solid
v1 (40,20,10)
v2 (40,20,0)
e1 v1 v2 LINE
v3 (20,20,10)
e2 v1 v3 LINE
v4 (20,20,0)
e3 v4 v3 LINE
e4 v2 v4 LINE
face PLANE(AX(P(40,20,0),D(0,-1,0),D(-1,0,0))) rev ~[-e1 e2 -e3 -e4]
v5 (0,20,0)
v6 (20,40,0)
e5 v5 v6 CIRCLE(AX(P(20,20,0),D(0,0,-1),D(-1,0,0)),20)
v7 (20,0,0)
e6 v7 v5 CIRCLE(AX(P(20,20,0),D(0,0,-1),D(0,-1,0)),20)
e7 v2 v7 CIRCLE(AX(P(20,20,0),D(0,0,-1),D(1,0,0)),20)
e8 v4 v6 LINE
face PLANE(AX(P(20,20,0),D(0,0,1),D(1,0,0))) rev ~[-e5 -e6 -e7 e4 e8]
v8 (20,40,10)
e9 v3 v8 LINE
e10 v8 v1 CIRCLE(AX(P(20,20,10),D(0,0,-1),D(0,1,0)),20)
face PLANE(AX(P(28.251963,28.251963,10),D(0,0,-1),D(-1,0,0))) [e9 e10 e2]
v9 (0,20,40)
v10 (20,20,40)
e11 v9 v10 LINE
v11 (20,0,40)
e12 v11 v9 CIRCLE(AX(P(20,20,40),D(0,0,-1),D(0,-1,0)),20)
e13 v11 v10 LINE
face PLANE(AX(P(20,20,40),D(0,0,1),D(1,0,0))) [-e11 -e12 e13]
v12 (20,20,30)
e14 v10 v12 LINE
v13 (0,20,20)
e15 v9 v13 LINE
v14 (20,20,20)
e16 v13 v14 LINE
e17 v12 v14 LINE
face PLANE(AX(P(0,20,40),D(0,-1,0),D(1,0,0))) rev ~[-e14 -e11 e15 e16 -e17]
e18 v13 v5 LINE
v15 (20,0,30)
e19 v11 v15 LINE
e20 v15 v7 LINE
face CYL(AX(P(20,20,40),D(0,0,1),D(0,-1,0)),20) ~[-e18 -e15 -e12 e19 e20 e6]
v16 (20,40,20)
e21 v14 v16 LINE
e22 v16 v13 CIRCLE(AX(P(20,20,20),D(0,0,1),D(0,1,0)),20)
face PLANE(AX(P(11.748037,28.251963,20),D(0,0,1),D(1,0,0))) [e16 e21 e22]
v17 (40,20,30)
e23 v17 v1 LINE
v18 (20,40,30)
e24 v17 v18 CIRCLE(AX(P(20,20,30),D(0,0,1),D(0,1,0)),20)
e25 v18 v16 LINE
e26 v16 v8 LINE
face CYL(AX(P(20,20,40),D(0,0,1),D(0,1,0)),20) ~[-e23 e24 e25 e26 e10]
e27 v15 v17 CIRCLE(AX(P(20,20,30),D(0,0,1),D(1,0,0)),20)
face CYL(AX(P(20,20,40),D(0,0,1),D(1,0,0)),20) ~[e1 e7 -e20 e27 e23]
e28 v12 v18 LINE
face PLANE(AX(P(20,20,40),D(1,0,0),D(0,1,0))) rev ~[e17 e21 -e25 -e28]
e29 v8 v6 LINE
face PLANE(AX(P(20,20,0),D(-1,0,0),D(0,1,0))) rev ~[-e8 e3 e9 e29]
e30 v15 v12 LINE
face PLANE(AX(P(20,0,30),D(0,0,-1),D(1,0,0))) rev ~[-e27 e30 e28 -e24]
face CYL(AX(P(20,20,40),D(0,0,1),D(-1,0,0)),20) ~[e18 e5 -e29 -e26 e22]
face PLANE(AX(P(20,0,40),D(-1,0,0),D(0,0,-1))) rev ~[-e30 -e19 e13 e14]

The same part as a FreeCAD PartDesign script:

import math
import FreeCAD as App
import Part
import Sketcher
from FreeCAD import Vector


def add_polygon(sketch, points):
    """Adds a closed chain of lines whose ends are joined by coincident constraints."""
    first, n = sketch.GeometryCount, len(points)
    for a, b in zip(points, points[1:] + points[:1]):
        sketch.addGeometry(Part.LineSegment(App.Vector(*a, 0), App.Vector(*b, 0)), False)
    for i in range(n):
        sketch.addConstraint(Sketcher.Constraint("Coincident", first + i, 2, first + (i + 1) % n, 1))

doc = App.newDocument("Part")
body = doc.addObject("PartDesign::Body", "Body")

sketch1 = body.newObject("Sketcher::SketchObject", "Sketch")
sketch1.AttachmentSupport = (doc.getObject("XY_Plane"), [""])
sketch1.MapMode = "FlatFace"
add_polygon(sketch1, [(0, 40), (0, 0), (40, 0), (40, 40)])
sketch1.addConstraint([
    Sketcher.Constraint("Vertical", 0),
    Sketcher.Constraint("Horizontal", 1),
    Sketcher.Constraint("Vertical", 2),
    Sketcher.Constraint("Horizontal", 3),
    Sketcher.Constraint("Coincident", 0, 2, -1, 1),
    Sketcher.Constraint("Equal", 3, 0),
    Sketcher.Constraint("DistanceX", 1, 1, 1, 2, 40.0),
])
pad1 = body.newObject("PartDesign::Pad", "Pad")
pad1.Profile = sketch1
pad1.Length = 40

sketch2 = body.newObject("Sketcher::SketchObject", "Sketch001")
sketch2.AttachmentSupport = (doc.getObject("XY_Plane"), [""])
sketch2.MapMode = "FlatFace"
sketch2.AttachmentOffset = App.Placement(Vector(0, 0, 40), App.Rotation())
sketch2.addGeometry([
    Part.LineSegment(Vector(20, 40, 0), Vector(0, 40, 0)),
    Part.LineSegment(Vector(0, 40, 0), Vector(0, 20, 0)),
    Part.ArcOfCircle(Part.Circle(Vector(20, 20, 0), Vector(0, 0, 1), 20), math.radians(90), math.radians(180)),
    Part.ArcOfCircle(Part.Circle(Vector(20, 20, 0), Vector(0, 0, 1), 20), math.radians(180), math.radians(270)),
    Part.LineSegment(Vector(0, 20, 0), Vector(0, 0, 0)),
    Part.LineSegment(Vector(0, 0, 0), Vector(20, 0, 0)),
    Part.LineSegment(Vector(40, 0, 0), Vector(40, 20, 0)),
    Part.ArcOfCircle(Part.Circle(Vector(20, 20, 0), Vector(0, 0, 1), 20), math.radians(-90), math.radians(0)),
    Part.LineSegment(Vector(20, 0, 0), Vector(40, 0, 0)),
    Part.LineSegment(Vector(40, 40, 0), Vector(20, 40, 0)),
    Part.ArcOfCircle(Part.Circle(Vector(20, 20, 0), Vector(0, 0, 1), 20), math.radians(0), math.radians(90)),
    Part.LineSegment(Vector(40, 20, 0), Vector(40, 40, 0)),
], False)
sketch2.addConstraint([
    Sketcher.Constraint("Coincident", 0, 2, 1, 1),
    Sketcher.Constraint("Tangent", 1, 2, 2, 2),
    Sketcher.Constraint("Tangent", 2, 1, 0, 1),
    Sketcher.Constraint("Tangent", 3, 1, 4, 1),
    Sketcher.Constraint("Coincident", 4, 2, 5, 1),
    Sketcher.Constraint("Tangent", 5, 2, 3, 2),
    Sketcher.Constraint("Tangent", 6, 2, 7, 2),
    Sketcher.Constraint("Tangent", 7, 1, 8, 1),
    Sketcher.Constraint("Coincident", 8, 2, 6, 1),
    Sketcher.Constraint("Tangent", 9, 2, 10, 2),
    Sketcher.Constraint("Tangent", 10, 1, 11, 1),
    Sketcher.Constraint("Coincident", 11, 2, 9, 1),
    Sketcher.Constraint("Horizontal", 0),
    Sketcher.Constraint("Vertical", 1),
    Sketcher.Constraint("Vertical", 4),
    Sketcher.Constraint("Horizontal", 5),
    Sketcher.Constraint("Vertical", 6),
    Sketcher.Constraint("Horizontal", 8),
    Sketcher.Constraint("Horizontal", 9),
    Sketcher.Constraint("Vertical", 11),
    Sketcher.Constraint("Coincident", 4, 2, -1, 1),
    Sketcher.Constraint("Coincident", 3, 3, 2, 3),
    Sketcher.Constraint("Coincident", 7, 3, 2, 3),
    Sketcher.Constraint("Coincident", 10, 3, 2, 3),
    Sketcher.Constraint("Equal", 2, 3),
    Sketcher.Constraint("Equal", 3, 7),
    Sketcher.Constraint("Equal", 7, 10),
    Sketcher.Constraint("Radius", 2, 20.0),
])
pocket1 = body.newObject("PartDesign::Pocket", "Pocket")
pocket1.Profile = sketch2
pocket1.Length = 40

sketch3 = body.newObject("Sketcher::SketchObject", "Sketch002")
sketch3.AttachmentSupport = (doc.getObject("XZ_Plane"), [""])
sketch3.MapMode = "FlatFace"
add_polygon(sketch3, [(20, 30), (20, 40), (40, 40), (40, 30)])
sketch3.addConstraint([
    Sketcher.Constraint("Vertical", 0),
    Sketcher.Constraint("Horizontal", 1),
    Sketcher.Constraint("Vertical", 2),
    Sketcher.Constraint("Horizontal", 3),
    Sketcher.Constraint("DistanceX", 1, 1, 1, 2, 20.0),
    Sketcher.Constraint("DistanceY", 0, 1, 0, 2, 10.0),
    Sketcher.Constraint("DistanceX", -1, 1, 0, 2, 20.0),
    Sketcher.Constraint("DistanceY", -1, 1, 0, 2, 40.0),
])
pocket2 = body.newObject("PartDesign::Pocket", "Pocket001")
pocket2.Profile = sketch3
pocket2.Length = 40

sketch4 = body.newObject("Sketcher::SketchObject", "Sketch003")
sketch4.AttachmentSupport = (doc.getObject("XY_Plane"), [""])
sketch4.MapMode = "FlatFace"
sketch4.AttachmentOffset = App.Placement(Vector(0, 0, 40), App.Rotation())
sketch4.addGeometry([
    Part.LineSegment(Vector(0, 20, 0), Vector(20, 20, 0)),
    Part.LineSegment(Vector(20, 20, 0), Vector(20, 40, 0)),
    Part.ArcOfCircle(Part.Circle(Vector(20, 20, 0), Vector(0, 0, 1), 20), math.radians(90), math.radians(180)),
], False)
sketch4.addConstraint([
    Sketcher.Constraint("Coincident", 0, 2, 1, 1),
    Sketcher.Constraint("Coincident", 1, 2, 2, 1),
    Sketcher.Constraint("Coincident", 2, 2, 0, 1),
    Sketcher.Constraint("Horizontal", 0),
    Sketcher.Constraint("Vertical", 1),
    Sketcher.Constraint("Coincident", 0, 2, 2, 3),
    Sketcher.Constraint("PointOnObject", 2, 2, -2),
    Sketcher.Constraint("Radius", 2, 20.0),
    Sketcher.Constraint("DistanceY", -1, 1, 2, 3, 20.0),
])
pocket3 = body.newObject("PartDesign::Pocket", "Pocket002")
pocket3.Profile = sketch4
pocket3.Length = 20

sketch5 = body.newObject("Sketcher::SketchObject", "Sketch004")
sketch5.AttachmentSupport = (doc.getObject("XY_Plane"), [""])
sketch5.MapMode = "FlatFace"
sketch5.addGeometry([
    Part.LineSegment(Vector(40, 20, 0), Vector(20, 20, 0)),
    Part.LineSegment(Vector(20, 20, 0), Vector(20, 40, 0)),
    Part.ArcOfCircle(Part.Circle(Vector(20, 20, 0), Vector(0, 0, 1), 20), math.radians(0), math.radians(90)),
], False)
sketch5.addConstraint([
    Sketcher.Constraint("Coincident", 0, 2, 1, 1),
    Sketcher.Constraint("Coincident", 1, 2, 2, 2),
    Sketcher.Constraint("Coincident", 2, 1, 0, 1),
    Sketcher.Constraint("Horizontal", 0),
    Sketcher.Constraint("Vertical", 1),
    Sketcher.Constraint("Coincident", 0, 2, 2, 3),
    Sketcher.Constraint("Radius", 2, 20.0),
    Sketcher.Constraint("DistanceX", -1, 1, 2, 3, 20.0),
    Sketcher.Constraint("DistanceY", -1, 1, 2, 3, 20.0),
])
pocket4 = body.newObject("PartDesign::Pocket", "Pocket003")
pocket4.Profile = sketch5
pocket4.Length = 10
pocket4.Reversed = True

doc.recompute()
